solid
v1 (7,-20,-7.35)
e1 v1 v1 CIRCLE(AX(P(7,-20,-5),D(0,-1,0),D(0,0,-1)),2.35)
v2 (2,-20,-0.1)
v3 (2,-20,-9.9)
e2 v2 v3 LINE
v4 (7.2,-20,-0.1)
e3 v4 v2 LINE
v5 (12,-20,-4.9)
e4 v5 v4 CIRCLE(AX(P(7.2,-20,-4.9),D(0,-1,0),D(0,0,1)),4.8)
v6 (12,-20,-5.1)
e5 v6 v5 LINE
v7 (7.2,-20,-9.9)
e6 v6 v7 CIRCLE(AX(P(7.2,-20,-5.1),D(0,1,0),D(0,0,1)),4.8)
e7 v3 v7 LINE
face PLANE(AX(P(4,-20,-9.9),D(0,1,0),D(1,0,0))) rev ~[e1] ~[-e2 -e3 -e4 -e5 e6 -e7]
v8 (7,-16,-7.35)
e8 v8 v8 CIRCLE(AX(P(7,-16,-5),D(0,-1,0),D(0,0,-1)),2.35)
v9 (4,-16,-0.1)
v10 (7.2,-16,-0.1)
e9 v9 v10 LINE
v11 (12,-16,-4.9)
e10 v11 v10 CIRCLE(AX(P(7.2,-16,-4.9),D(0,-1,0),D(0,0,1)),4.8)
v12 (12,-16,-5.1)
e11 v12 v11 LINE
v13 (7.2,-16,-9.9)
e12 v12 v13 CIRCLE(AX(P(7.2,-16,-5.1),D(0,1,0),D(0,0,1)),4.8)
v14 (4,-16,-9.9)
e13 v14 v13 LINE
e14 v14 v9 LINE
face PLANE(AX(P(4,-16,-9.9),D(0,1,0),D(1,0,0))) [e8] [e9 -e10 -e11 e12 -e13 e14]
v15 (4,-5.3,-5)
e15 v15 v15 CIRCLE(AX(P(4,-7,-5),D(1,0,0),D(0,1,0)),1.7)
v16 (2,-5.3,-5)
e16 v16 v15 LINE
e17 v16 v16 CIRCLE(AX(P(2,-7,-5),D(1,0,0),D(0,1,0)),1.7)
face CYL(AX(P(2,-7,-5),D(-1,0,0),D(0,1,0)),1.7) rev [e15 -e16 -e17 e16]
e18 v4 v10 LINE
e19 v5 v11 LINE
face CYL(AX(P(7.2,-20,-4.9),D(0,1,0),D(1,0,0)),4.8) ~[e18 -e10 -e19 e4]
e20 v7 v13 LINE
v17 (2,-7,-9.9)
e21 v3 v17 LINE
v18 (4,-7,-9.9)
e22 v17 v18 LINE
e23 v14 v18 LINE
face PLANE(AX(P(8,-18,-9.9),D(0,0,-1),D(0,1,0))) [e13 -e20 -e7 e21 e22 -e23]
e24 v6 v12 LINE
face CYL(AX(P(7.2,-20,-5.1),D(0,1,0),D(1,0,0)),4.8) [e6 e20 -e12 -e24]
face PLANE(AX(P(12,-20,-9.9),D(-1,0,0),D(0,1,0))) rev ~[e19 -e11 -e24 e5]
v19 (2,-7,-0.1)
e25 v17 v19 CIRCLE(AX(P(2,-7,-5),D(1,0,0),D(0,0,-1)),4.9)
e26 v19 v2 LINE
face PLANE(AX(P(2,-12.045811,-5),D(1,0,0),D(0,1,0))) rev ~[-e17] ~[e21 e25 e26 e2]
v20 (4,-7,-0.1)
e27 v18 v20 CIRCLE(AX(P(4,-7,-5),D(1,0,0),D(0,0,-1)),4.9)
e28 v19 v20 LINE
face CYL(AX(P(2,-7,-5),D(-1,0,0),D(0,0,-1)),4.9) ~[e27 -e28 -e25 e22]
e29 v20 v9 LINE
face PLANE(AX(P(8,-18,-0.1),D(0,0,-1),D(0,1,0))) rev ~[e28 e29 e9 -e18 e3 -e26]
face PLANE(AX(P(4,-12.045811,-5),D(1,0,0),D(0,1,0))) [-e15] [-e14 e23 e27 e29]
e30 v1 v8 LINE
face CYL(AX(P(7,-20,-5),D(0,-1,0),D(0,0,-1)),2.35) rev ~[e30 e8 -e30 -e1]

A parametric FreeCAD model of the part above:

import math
import FreeCAD as App
import Part
import Sketcher
from FreeCAD import Vector
Q = App.Units.Quantity


def edges_at(feature, points):
    """Names of the edges that pass closest to the given points."""
    edges = feature.Shape.Edges
    near = lambda p: min(range(len(edges)), key=lambda i: edges[i].distToShape(Part.Vertex(*p))[0])
    return sorted({f"Edge{near(p) + 1}" for p in points})


def add_polygon(sketch, points):
    """Adds a closed chain of lines whose ends are joined by coincident constraints."""
    first, n = sketch.GeometryCount, len(points)
    for a, b in zip(points, points[1:] + points[:1]):
        sketch.addGeometry(Part.LineSegment(App.Vector(*a, 0), App.Vector(*b, 0)), False)
    for i in range(n):
        sketch.addConstraint(Sketcher.Constraint("Coincident", first + i, 2, first + (i + 1) % n, 1))

doc = App.newDocument("Part")
body = doc.addObject("PartDesign::Body", "Body")

# Sketch on YZ plane
sketch1 = doc.addObject("Sketcher::SketchObject", "Sketch")
body.addObject(sketch1)
sketch1.AttachmentSupport = (doc.YZ_Plane, [""])
sketch1.MapMode = "FlatFace"
sketch1.AttachmentOffset = App.Placement(Vector(0, 0, 2), App.Rotation())
sketch1.addGeometry([
    Part.ArcOfCircle(Part.Circle(Vector(-7, -5, 0), Vector(0, 0, 1), 4.9), math.radians(-90), math.radians(90)),  # 0
    Part.LineSegment(Vector(-7, -0.1, 0), Vector(-20, -0.1, 0)),  # 1
    Part.LineSegment(Vector(-20, -0.1, 0), Vector(-20, -9.9, 0)),  # 2
    Part.LineSegment(Vector(-20, -9.9, 0), Vector(-7, -9.9, 0)),  # 3
    Part.Circle(Vector(-7, -5, 0), Vector(0, 0, 1), 1.7),  # 4
], False)
sketch1.addConstraint([
    Sketcher.Constraint("Tangent", 0, 2, 1, 1),
    Sketcher.Constraint("Coincident", 1, 2, 2, 1),
    Sketcher.Constraint("Coincident", 2, 2, 3, 1),
    Sketcher.Constraint("Tangent", 3, 2, 0, 1),
    Sketcher.Constraint("Horizontal", 1),
    Sketcher.Constraint("Vertical", 2),
    Sketcher.Constraint("Horizontal", 3),
    Sketcher.Constraint("Coincident", 4, 3, 0, 3),
    Sketcher.Constraint("Diameter", 4, Q("3.4 mm")),
    Sketcher.Constraint("Radius", 0, Q("4.9 mm")),
    Sketcher.Constraint("DistanceX", 1, 2, 1, 1, Q("13 mm")),
    Sketcher.Constraint("DistanceX", 0, 3, -1, 1, Q("7 mm")),
    Sketcher.Constraint("DistanceY", 0, 3, -1, 1, Q("5 mm")),
])
pad1 = doc.addObject("PartDesign::Pad", "Pad")
body.addObject(pad1)
pad1.Profile = sketch1
pad1.Length = 2

# Sketch on XY plane
sketch2 = doc.addObject("Sketcher::SketchObject", "Sketch001")
body.addObject(sketch2)
sketch2.AttachmentSupport = (doc.XY_Plane, [""])
sketch2.MapMode = "FlatFace"
sketch2.AttachmentOffset = App.Placement(Vector(0, 0, -9.9), App.Rotation())
add_polygon(sketch2, [(12, -20), (4, -20), (4, -16), (12, -16)])  # lines 0-3
sketch2.addConstraint([
    Sketcher.Constraint("Horizontal", 0),
    Sketcher.Constraint("Vertical", 1),
    Sketcher.Constraint("Horizontal", 2),
    Sketcher.Constraint("Vertical", 3),
    Sketcher.Constraint("DistanceX", 0, 2, 0, 1, Q("8 mm")),
    Sketcher.Constraint("DistanceY", 1, 1, 1, 2, Q("4 mm")),
    Sketcher.Constraint("DistanceX", -1, 1, 0, 2, Q("4 mm")),
    Sketcher.Constraint("DistanceY", 0, 2, -1, 1, Q("20 mm")),
])
pad2 = doc.addObject("PartDesign::Pad", "Pad001")
body.addObject(pad2)
pad2.Profile = sketch2
pad2.Length = 9.8

# Sketch on XZ plane
sketch3 = doc.addObject("Sketcher::SketchObject", "Sketch002")
body.addObject(sketch3)
sketch3.AttachmentSupport = (doc.XZ_Plane, [""])
sketch3.MapMode = "FlatFace"
sketch3.AttachmentOffset = App.Placement(Vector(0, 0, 20), App.Rotation())
sketch3.addGeometry(Part.Circle(Vector(7, -5, 0), Vector(0, 0, 1), 2.4), False)
sketch3.addConstraint([
    Sketcher.Constraint("Diameter", 0, Q("4.7 mm")),
    Sketcher.Constraint("DistanceX", -1, 1, 0, 3, Q("7 mm")),
    Sketcher.Constraint("DistanceY", 0, 3, -1, 1, Q("5 mm")),
])
pocket1 = doc.addObject("PartDesign::Pocket", "Pocket")
body.addObject(pocket1)
pocket1.Profile = sketch3
pocket1.Length = 5
doc.recompute()

fillet = doc.addObject("PartDesign::Fillet", "Fillet")
body.addObject(fillet)
fillet.Base = (pocket1, edges_at(pocket1, [(12, -18, -0.1), (12, -18, -9.9)]))
fillet.Radius = 4.8

doc.recompute()
